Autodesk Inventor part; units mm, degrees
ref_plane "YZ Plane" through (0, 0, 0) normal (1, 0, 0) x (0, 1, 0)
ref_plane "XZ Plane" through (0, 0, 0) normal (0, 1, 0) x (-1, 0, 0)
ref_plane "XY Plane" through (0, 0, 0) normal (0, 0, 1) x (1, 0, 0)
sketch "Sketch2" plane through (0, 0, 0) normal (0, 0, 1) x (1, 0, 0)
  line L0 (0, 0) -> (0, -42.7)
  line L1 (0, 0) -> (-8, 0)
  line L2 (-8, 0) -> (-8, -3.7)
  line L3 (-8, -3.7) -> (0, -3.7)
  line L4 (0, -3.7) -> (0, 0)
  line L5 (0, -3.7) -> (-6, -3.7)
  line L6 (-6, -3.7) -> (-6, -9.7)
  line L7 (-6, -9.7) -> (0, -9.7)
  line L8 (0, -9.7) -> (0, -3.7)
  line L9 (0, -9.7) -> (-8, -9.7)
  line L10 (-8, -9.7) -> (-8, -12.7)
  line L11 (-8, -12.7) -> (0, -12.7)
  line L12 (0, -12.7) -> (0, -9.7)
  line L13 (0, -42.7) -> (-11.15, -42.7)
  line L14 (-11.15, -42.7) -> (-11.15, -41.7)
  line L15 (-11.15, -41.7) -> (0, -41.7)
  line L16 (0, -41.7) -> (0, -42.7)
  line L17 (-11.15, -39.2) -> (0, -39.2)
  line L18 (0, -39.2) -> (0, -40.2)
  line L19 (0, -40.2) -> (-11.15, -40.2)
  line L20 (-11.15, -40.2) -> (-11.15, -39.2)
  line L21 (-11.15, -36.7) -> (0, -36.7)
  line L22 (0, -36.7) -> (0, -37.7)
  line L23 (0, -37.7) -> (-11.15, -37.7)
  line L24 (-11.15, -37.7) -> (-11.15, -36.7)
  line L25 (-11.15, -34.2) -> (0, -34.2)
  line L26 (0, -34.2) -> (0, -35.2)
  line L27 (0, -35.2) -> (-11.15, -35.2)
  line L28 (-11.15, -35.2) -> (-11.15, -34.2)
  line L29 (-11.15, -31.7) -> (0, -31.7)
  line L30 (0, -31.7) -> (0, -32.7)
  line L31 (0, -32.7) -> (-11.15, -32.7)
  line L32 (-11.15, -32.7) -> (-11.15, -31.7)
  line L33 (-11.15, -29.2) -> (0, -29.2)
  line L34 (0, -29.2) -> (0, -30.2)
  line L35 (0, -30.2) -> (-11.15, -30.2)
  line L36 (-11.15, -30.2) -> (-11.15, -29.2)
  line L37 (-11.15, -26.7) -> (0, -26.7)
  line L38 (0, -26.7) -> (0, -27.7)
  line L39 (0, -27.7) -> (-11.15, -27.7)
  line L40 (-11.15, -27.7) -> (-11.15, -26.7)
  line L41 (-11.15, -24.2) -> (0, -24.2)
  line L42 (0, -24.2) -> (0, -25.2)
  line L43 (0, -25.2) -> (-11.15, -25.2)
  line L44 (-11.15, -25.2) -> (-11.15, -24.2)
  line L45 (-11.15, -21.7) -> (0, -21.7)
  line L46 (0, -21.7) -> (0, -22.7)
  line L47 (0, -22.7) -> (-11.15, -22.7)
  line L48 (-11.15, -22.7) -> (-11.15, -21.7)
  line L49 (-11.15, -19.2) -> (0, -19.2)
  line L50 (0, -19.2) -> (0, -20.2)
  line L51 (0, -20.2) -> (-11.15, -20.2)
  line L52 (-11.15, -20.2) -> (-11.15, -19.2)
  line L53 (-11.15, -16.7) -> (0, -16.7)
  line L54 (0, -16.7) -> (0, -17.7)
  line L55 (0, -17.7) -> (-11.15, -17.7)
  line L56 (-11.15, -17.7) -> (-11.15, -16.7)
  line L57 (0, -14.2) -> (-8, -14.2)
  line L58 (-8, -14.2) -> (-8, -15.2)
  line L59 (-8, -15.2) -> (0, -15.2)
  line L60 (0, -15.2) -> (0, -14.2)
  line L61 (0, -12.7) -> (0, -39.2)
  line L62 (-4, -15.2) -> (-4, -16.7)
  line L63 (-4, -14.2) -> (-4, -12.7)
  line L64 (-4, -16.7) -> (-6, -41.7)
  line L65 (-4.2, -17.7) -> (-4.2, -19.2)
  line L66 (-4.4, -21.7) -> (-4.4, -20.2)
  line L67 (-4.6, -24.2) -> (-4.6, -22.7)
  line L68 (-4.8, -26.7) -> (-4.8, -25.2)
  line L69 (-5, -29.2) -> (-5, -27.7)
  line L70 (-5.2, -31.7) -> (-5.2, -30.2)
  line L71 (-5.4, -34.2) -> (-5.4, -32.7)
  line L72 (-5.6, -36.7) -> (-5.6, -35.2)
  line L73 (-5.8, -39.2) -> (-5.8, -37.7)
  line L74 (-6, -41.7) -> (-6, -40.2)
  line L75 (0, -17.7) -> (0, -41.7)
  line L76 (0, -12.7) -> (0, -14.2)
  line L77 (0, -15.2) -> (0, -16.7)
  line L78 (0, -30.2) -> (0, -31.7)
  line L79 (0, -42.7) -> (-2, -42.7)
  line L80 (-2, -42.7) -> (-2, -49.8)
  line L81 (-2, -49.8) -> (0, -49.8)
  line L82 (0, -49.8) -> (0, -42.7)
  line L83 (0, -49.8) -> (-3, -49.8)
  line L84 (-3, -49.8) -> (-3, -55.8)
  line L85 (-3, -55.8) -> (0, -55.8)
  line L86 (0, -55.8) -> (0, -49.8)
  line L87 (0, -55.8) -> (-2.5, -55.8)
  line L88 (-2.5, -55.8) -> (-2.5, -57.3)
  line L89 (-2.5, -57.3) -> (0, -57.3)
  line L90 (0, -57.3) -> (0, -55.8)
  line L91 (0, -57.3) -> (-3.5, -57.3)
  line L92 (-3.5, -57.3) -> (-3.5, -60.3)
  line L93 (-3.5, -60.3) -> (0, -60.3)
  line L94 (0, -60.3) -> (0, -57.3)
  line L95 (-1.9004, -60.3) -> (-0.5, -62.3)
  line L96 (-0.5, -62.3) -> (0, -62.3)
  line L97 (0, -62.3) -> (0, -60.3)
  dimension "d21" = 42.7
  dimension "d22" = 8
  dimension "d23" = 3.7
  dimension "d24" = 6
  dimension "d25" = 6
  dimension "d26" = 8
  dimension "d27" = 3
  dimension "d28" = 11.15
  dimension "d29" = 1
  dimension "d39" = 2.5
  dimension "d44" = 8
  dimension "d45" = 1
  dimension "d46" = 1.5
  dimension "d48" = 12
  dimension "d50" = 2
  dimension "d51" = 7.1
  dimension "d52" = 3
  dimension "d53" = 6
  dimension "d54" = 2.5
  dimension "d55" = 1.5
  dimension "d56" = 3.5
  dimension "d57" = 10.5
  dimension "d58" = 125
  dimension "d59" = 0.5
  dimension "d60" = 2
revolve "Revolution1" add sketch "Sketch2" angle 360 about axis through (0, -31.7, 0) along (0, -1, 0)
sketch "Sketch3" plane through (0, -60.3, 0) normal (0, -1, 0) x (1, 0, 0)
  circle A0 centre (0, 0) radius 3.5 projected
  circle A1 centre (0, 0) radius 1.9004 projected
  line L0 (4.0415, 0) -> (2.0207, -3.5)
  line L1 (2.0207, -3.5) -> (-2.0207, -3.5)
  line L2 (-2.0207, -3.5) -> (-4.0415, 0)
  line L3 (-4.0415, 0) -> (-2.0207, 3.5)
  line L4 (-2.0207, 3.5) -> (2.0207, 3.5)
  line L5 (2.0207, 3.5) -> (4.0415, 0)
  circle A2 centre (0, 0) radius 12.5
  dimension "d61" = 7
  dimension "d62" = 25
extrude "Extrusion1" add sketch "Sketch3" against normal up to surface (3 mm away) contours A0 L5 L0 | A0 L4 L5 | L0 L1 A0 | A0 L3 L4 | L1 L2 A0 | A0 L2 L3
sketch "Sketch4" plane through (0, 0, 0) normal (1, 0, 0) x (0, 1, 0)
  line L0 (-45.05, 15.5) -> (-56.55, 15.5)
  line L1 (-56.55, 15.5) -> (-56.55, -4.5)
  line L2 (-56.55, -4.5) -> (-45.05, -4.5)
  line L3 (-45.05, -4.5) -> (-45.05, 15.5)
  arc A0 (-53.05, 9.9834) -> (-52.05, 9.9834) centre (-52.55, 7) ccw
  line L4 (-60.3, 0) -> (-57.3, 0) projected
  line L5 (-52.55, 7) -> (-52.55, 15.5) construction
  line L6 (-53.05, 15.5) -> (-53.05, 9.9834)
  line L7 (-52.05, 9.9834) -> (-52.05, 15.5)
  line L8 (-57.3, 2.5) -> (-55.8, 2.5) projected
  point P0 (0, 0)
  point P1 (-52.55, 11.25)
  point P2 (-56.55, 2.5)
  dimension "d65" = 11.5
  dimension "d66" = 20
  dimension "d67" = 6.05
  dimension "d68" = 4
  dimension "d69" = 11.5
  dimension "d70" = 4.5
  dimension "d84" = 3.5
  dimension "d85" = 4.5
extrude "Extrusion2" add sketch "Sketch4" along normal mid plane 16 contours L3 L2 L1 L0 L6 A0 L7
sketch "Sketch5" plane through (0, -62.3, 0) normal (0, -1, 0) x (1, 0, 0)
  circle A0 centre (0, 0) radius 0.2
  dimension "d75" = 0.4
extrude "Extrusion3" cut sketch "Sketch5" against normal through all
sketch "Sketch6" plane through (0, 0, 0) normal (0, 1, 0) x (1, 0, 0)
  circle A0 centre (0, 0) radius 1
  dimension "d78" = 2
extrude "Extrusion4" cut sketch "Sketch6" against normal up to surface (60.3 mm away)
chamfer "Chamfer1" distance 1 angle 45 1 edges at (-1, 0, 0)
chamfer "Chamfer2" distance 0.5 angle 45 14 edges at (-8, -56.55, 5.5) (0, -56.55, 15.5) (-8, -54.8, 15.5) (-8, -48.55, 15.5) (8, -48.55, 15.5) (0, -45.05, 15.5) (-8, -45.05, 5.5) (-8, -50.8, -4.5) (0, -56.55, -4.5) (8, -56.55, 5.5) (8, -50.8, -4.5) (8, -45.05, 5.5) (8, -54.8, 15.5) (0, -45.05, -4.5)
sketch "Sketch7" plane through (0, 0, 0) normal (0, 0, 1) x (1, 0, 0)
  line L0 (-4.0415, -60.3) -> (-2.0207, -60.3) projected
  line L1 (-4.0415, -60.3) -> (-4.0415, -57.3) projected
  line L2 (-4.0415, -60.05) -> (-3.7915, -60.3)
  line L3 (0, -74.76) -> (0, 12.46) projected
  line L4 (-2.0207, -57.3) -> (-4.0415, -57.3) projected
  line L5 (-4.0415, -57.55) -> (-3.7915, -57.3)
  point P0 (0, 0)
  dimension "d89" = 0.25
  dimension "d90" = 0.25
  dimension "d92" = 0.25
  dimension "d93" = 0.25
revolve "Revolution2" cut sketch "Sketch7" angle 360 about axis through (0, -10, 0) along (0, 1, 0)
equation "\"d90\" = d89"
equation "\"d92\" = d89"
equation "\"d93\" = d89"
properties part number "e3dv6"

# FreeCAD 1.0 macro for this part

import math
import FreeCAD as App
import Part
import Sketcher
from FreeCAD import Vector
Q = App.Units.Quantity


def edges_at(feature, points):
    """Names of the edges that pass closest to the given points."""
    edges = feature.Shape.Edges
    near = lambda p: min(range(len(edges)), key=lambda i: edges[i].distToShape(Part.Vertex(*p))[0])
    return sorted({f"Edge{near(p) + 1}" for p in points})


def add_polygon(sketch, points):
    """Adds a closed chain of lines whose ends are joined by coincident constraints."""
    first, n = sketch.GeometryCount, len(points)
    for a, b in zip(points, points[1:] + points[:1]):
        sketch.addGeometry(Part.LineSegment(App.Vector(*a, 0), App.Vector(*b, 0)), False)
    for i in range(n):
        sketch.addConstraint(Sketcher.Constraint("Coincident", first + i, 2, first + (i + 1) % n, 1))

doc = App.newDocument("Part")
params = doc.addObject("Spreadsheet::Sheet", "Params")
for row, (alias, value) in enumerate([
    ("sketch1_width", "8 mm"),
    ("sketch1_width2", "2 mm"),
    ("sketch1_width3", "1 mm"),
    ("sketch1_height", "6 mm"),
    ("sketch1_height2", "3 mm"),
    ("revolution_angle", "360 deg"),
    ("sketch2_radius", "3.5 mm"),
    ("pad1_length", "3 mm"),
    ("sketch3_height", "20 mm"),
    ("sketch3_width", "3.5 mm"),
    ("sketch3_width2", "11.5 mm"),
    ("pad2_length", "16 mm"),
    ("sketch4_diameter", "0.4 mm"),
    ("sketch5_diameter", "2 mm"),
    ("pocket2_length", "60.3 mm"),
    ("chamfer_size", "1 mm"),
    ("chamfer2_size", "0.5 mm"),
    ("sketch6_width", "0.25 mm"),
    ("groove_angle", "360 deg"),
], start=1):
    params.set(f"A{row}", alias)
    params.set(f"B{row}", "=" + value)
    params.setAlias(f"B{row}", alias)

body = doc.addObject("PartDesign::Body", "Body")

# Sketch on XY plane
sketch1 = body.newObject("Sketcher::SketchObject", "Sketch")
sketch1.AttachmentSupport = (doc.getObject("XY_Plane"), [""])
sketch1.MapMode = "FlatFace"
add_polygon(sketch1, [(0, 0), (-8, 0), (-8, -3.7), (-6, -3.7), (-6, -9.7), (-8, -9.7), (-8, -12.7), (-4, -12.7), (-4, -14.2), (-8, -14.2), (-8, -15.2), (-4, -15.2), (-4, -16.7), (-11.15, -16.7), (-11.15, -17.7), (-4.2, -17.7), (-4.2, -19.2), (-11.15, -19.2), (-11.15, -20.2), (-4.4, -20.2), (-4.4, -21.7), (-11.15, -21.7), (-11.15, -22.7), (-4.6, -22.7), (-4.6, -24.2), (-11.15, -24.2), (-11.15, -25.2), (-4.8, -25.2), (-4.8, -26.7), (-11.15, -26.7), (-11.15, -27.7), (-5, -27.7), (-5, -29.2), (-11.15, -29.2), (-11.15, -30.2), (-5.2, -30.2), (-5.2, -31.7), (-11.15, -31.7), (-11.15, -32.7), (-5.4, -32.7), (-5.4, -34.2), (-11.15, -34.2), (-11.15, -35.2), (-5.6, -35.2), (-5.6, -36.7), (-11.15, -36.7), (-11.15, -37.7), (-5.8, -37.7), (-5.8, -39.2), (-11.15, -39.2), (-11.15, -40.2), (-6, -40.2), (-6, -41.7), (-11.15, -41.7), (-11.15, -42.7), (-2, -42.7), (-2, -49.8), (-3, -49.8), (-3, -55.8), (-2.5, -55.8), (-2.5, -57.3), (-3.5, -57.3), (-3.5, -60.3), (-1.9004, -60.3), (-0.5, -62.3), (0, -62.3)])  # lines 0-65
sketch1.addConstraint([
    Sketcher.Constraint("Horizontal", 0),
    Sketcher.Constraint("Vertical", 1),
    Sketcher.Constraint("Horizontal", 2),
    Sketcher.Constraint("Vertical", 3),
    Sketcher.Constraint("Horizontal", 4),
    Sketcher.Constraint("Vertical", 5),
    Sketcher.Constraint("Horizontal", 6),
    Sketcher.Constraint("Vertical", 7),
    Sketcher.Constraint("Horizontal", 8),
    Sketcher.Constraint("Vertical", 9),
    Sketcher.Constraint("Horizontal", 10),
    Sketcher.Constraint("Vertical", 11),
    Sketcher.Constraint("Horizontal", 12),
    Sketcher.Constraint("Vertical", 13),
    Sketcher.Constraint("Horizontal", 14),
    Sketcher.Constraint("Vertical", 15),
    Sketcher.Constraint("Horizontal", 16),
    Sketcher.Constraint("Vertical", 17),
    Sketcher.Constraint("Horizontal", 18),
    Sketcher.Constraint("Vertical", 19),
    Sketcher.Constraint("Horizontal", 20),
    Sketcher.Constraint("Vertical", 21),
    Sketcher.Constraint("Horizontal", 22),
    Sketcher.Constraint("Vertical", 23),
    Sketcher.Constraint("Horizontal", 24),
    Sketcher.Constraint("Vertical", 25),
    Sketcher.Constraint("Horizontal", 26),
    Sketcher.Constraint("Vertical", 27),
    Sketcher.Constraint("Horizontal", 28),
    Sketcher.Constraint("Vertical", 29),
    Sketcher.Constraint("Horizontal", 30),
    Sketcher.Constraint("Vertical", 31),
    Sketcher.Constraint("Horizontal", 32),
    Sketcher.Constraint("Vertical", 33),
    Sketcher.Constraint("Horizontal", 34),
    Sketcher.Constraint("Vertical", 35),
    Sketcher.Constraint("Horizontal", 36),
    Sketcher.Constraint("Vertical", 37),
    Sketcher.Constraint("Horizontal", 38),
    Sketcher.Constraint("Vertical", 39),
    Sketcher.Constraint("Horizontal", 40),
    Sketcher.Constraint("Vertical", 41),
    Sketcher.Constraint("Horizontal", 42),
    Sketcher.Constraint("Vertical", 43),
    Sketcher.Constraint("Horizontal", 44),
    Sketcher.Constraint("Vertical", 45),
    Sketcher.Constraint("Horizontal", 46),
    Sketcher.Constraint("Vertical", 47),
    Sketcher.Constraint("Horizontal", 48),
    Sketcher.Constraint("Vertical", 49),
    Sketcher.Constraint("Horizontal", 50),
    Sketcher.Constraint("Vertical", 51),
    Sketcher.Constraint("Horizontal", 52),
    Sketcher.Constraint("Vertical", 53),
    Sketcher.Constraint("Horizontal", 54),
    Sketcher.Constraint("Vertical", 55),
    Sketcher.Constraint("Horizontal", 56),
    Sketcher.Constraint("Vertical", 57),
    Sketcher.Constraint("Horizontal", 58),
    Sketcher.Constraint("Vertical", 59),
    Sketcher.Constraint("Horizontal", 60),
    Sketcher.Constraint("Vertical", 61),
    Sketcher.Constraint("Horizontal", 62),
    Sketcher.Constraint("Horizontal", 64),
    Sketcher.Constraint("Vertical", 65),
    Sketcher.Constraint("Coincident", 65, 2, -1, 1),
    Sketcher.Constraint("Vertical", 1, 2, 4, 2),
    Sketcher.Constraint("Vertical", 5, 2, 8, 2),
    Sketcher.Constraint("Vertical", 7, 2, 10, 2),
    Sketcher.Constraint("Vertical", 13, 2, 16, 2),
    Sketcher.Constraint("Vertical", 17, 2, 20, 2),
    Sketcher.Constraint("Vertical", 21, 2, 24, 2),
    Sketcher.Constraint("Vertical", 25, 2, 28, 2),
    Sketcher.Constraint("Vertical", 29, 2, 32, 2),
    Sketcher.Constraint("Vertical", 33, 2, 36, 2),
    Sketcher.Constraint("Vertical", 37, 2, 40, 2),
    Sketcher.Constraint("Vertical", 41, 2, 44, 2),
    Sketcher.Constraint("Vertical", 45, 2, 48, 2),
    Sketcher.Constraint("Vertical", 3, 2, 50, 2),
    Sketcher.Constraint("Vertical", 49, 2, 52, 2),
    Sketcher.Constraint("Equal", 56, 60),
    Sketcher.Constraint("Equal", 58, 64),
    Sketcher.Constraint("Equal", 60, 9),
    Sketcher.Constraint("Equal", 7, 11),
    Sketcher.Constraint("Equal", 9, 13),
    Sketcher.Constraint("Equal", 11, 15),
    Sketcher.Constraint("Equal", 13, 17),
    Sketcher.Constraint("Equal", 15, 19),
    Sketcher.Constraint("Equal", 17, 21),
    Sketcher.Constraint("Equal", 19, 23),
    Sketcher.Constraint("Equal", 21, 25),
    Sketcher.Constraint("Equal", 23, 27),
    Sketcher.Constraint("Equal", 25, 29),
    Sketcher.Constraint("Equal", 27, 31),
    Sketcher.Constraint("Equal", 29, 33),
    Sketcher.Constraint("Equal", 31, 35),
    Sketcher.Constraint("Equal", 33, 37),
    Sketcher.Constraint("Equal", 35, 39),
    Sketcher.Constraint("Equal", 37, 41),
    Sketcher.Constraint("Equal", 39, 43),
    Sketcher.Constraint("Equal", 41, 45),
    Sketcher.Constraint("Equal", 43, 47),
    Sketcher.Constraint("Equal", 45, 49),
    Sketcher.Constraint("Equal", 47, 51),
    Sketcher.Constraint("Equal", 49, 53),
    Sketcher.Constraint("Equal", 3, 57),
    Sketcher.Constraint("Equal", 51, 59),
    Sketcher.Constraint("Equal", 5, 61),
    Sketcher.Constraint("DistanceX", 0, 2, 0, 1, 8.0),
    Sketcher.Constraint("DistanceX", 2, 1, 2, 2, 2.0),
    Sketcher.Constraint("DistanceX", 56, 2, 56, 1, 1.0),
    Sketcher.Constraint("DistanceY", 3, 2, 3, 1, 6.0),
    Sketcher.Constraint("DistanceY", 5, 2, 5, 1, 3.0),
    Sketcher.Constraint("DistanceX", 58, 1, 58, 2, 0.5),
    Sketcher.Constraint("DistanceY", 1, 2, 1, 1, 3.7),
    Sketcher.Constraint("DistanceY", 7, 2, 7, 1, 1.5),
    Sketcher.Constraint("DistanceY", 55, 2, 55, 1, 7.1),
    Sketcher.Constraint("DistanceX", 54, 2, -1, 1, 2.0),
    Sketcher.Constraint("DistanceX", 6, 1, 6, 2, 4.0),
    Sketcher.Constraint("DistanceX", 12, 2, -1, 1, 11.15),
    Sketcher.Constraint("Angle", 63, Q("-55.0003 deg")),
    Sketcher.Constraint("DistanceY", 65, 1, 65, 2, 62.3),
    Sketcher.Constraint("DistanceX", 30, 2, -1, 1, 5.0),
    Sketcher.Constraint("DistanceX", 14, 1, 14, 2, 6.95),
    Sketcher.Constraint("DistanceX", 18, 1, 18, 2, 6.75),
    Sketcher.Constraint("DistanceX", 22, 1, 22, 2, 6.55),
    Sketcher.Constraint("DistanceX", 26, 1, 26, 2, 6.35),
    Sketcher.Constraint("DistanceX", 34, 1, 34, 2, 5.95),
    Sketcher.Constraint("DistanceX", 38, 1, 38, 2, 5.75),
    Sketcher.Constraint("DistanceX", 42, 1, 42, 2, 5.55),
    Sketcher.Constraint("DistanceX", 46, 1, 46, 2, 5.35),
])
sketch1.setExpression("Constraints[174]", "Params.sketch1_width")
sketch1.setExpression("Constraints[175]", "Params.sketch1_width2")
sketch1.setExpression("Constraints[176]", "Params.sketch1_width3")
sketch1.setExpression("Constraints[177]", "Params.sketch1_height")
sketch1.setExpression("Constraints[178]", "Params.sketch1_height2")
revolution = body.newObject("PartDesign::Revolution", "Revolution")
revolution.Profile = sketch1
revolution.ReferenceAxis = (sketch1, ["V_Axis"])
revolution.setExpression("Angle", "Params.revolution_angle")

# Sketch on XZ plane
sketch2 = body.newObject("Sketcher::SketchObject", "Sketch001")
sketch2.AttachmentSupport = (doc.getObject("XZ_Plane"), [""])
sketch2.MapMode = "FlatFace"
sketch2.AttachmentOffset = App.Placement(Vector(0, 0, 60.3), App.Rotation())
sketch2.addGeometry([
    Part.ArcOfCircle(Part.Circle(Vector(0, 0, 0), Vector(0, 0, 1), 3.5), math.radians(-30.000909), math.radians(30.000909)),  # 0
    Part.LineSegment(Vector(3.031069, -1.750053, 0), Vector(4.0415, 0, 0)),  # 1
    Part.LineSegment(Vector(4.0415, 0, 0), Vector(3.031069, 1.750053, 0)),  # 2
    Part.ArcOfCircle(Part.Circle(Vector(0, 0, 0), Vector(0, 0, 1), 3.5), math.radians(30.000909), math.radians(90)),  # 3
    Part.LineSegment(Vector(3.031069, 1.750053, 0), Vector(2.0207, 3.5, 0)),  # 4
    Part.LineSegment(Vector(2.0207, 3.5, 0), Vector(0, 3.5, 0)),  # 5
    Part.LineSegment(Vector(2.0207, -3.5, 0), Vector(3.031069, -1.750053, 0)),  # 6
    Part.ArcOfCircle(Part.Circle(Vector(0, 0, 0), Vector(0, 0, 1), 3.5), math.radians(-90), math.radians(-30.000909)),  # 7
    Part.LineSegment(Vector(0, -3.5, 0), Vector(2.0207, -3.5, 0)),  # 8
    Part.ArcOfCircle(Part.Circle(Vector(0, 0, 0), Vector(0, 0, 1), 3.5), math.radians(90), math.radians(149.99909)),  # 9
    Part.LineSegment(Vector(0, 3.5, 0), Vector(-2.0207, 3.5, 0)),  # 10
    Part.LineSegment(Vector(-2.0207, 3.5, 0), Vector(-3.031069, 1.750053, 0)),  # 11
    Part.LineSegment(Vector(-2.0207, -3.5, 0), Vector(0, -3.5, 0)),  # 12
    Part.ArcOfCircle(Part.Circle(Vector(0, 0, 0), Vector(0, 0, 1), 3.5), math.radians(-149.999091), math.radians(-90)),  # 13
    Part.LineSegment(Vector(-3.031069, -1.750053, 0), Vector(-2.0207, -3.5, 0)),  # 14
    Part.ArcOfCircle(Part.Circle(Vector(0, 0, 0), Vector(0, 0, 1), 3.5), math.radians(149.99909), math.radians(210.000909)),  # 15
    Part.LineSegment(Vector(-3.031069, 1.750053, 0), Vector(-4.0415, 0, 0)),  # 16
    Part.LineSegment(Vector(-4.0415, 0, 0), Vector(-3.031069, -1.750053, 0)),  # 17
], False)
sketch2.addConstraint([
    Sketcher.Constraint("Tangent", 0, 1, 1, 1),
    Sketcher.Constraint("Coincident", 1, 2, 2, 1),
    Sketcher.Constraint("Tangent", 2, 2, 0, 2),
    Sketcher.Constraint("Tangent", 3, 1, 4, 1),
    Sketcher.Constraint("Coincident", 4, 2, 5, 1),
    Sketcher.Constraint("Tangent", 5, 2, 3, 2),
    Sketcher.Constraint("Tangent", 6, 2, 7, 2),
    Sketcher.Constraint("Tangent", 7, 1, 8, 1),
    Sketcher.Constraint("Coincident", 8, 2, 6, 1),
    Sketcher.Constraint("Tangent", 9, 1, 10, 1),
    Sketcher.Constraint("Coincident", 10, 2, 11, 1),
    Sketcher.Constraint("Tangent", 11, 2, 9, 2),
    Sketcher.Constraint("Tangent", 12, 2, 13, 2),
    Sketcher.Constraint("Tangent", 13, 1, 14, 1),
    Sketcher.Constraint("Coincident", 14, 2, 12, 1),
    Sketcher.Constraint("Tangent", 15, 1, 16, 1),
    Sketcher.Constraint("Coincident", 16, 2, 17, 1),
    Sketcher.Constraint("Tangent", 17, 2, 15, 2),
    Sketcher.Constraint("Horizontal", 5),
    Sketcher.Constraint("Horizontal", 8),
    Sketcher.Constraint("Horizontal", 10),
    Sketcher.Constraint("Horizontal", 12),
    Sketcher.Constraint("Coincident", 0, 3, -1, 1),
    Sketcher.Constraint("Coincident", 3, 3, -1, 1),
    Sketcher.Constraint("Coincident", 7, 3, -1, 1),
    Sketcher.Constraint("Coincident", 9, 3, -1, 1),
    Sketcher.Constraint("Coincident", 13, 3, -1, 1),
    Sketcher.Constraint("Coincident", 15, 3, -1, 1),
    Sketcher.Constraint("Coincident", 3, 1, 2, 2),
    Sketcher.Constraint("Coincident", 6, 2, 0, 1),
    Sketcher.Constraint("Coincident", 15, 1, 11, 2),
    Sketcher.Constraint("Coincident", 17, 2, 13, 1),
    Sketcher.Constraint("Equal", 7, 9),
    Sketcher.Constraint("Symmetric", 1, 2, 16, 2, -1, 1),
    Sketcher.Constraint("PointOnObject", 1, 2, -1),
    Sketcher.Constraint("Equal", 2, 4),
    Sketcher.Constraint("Radius", 0, 3.5),
])
sketch2.setExpression("Constraints[36]", "Params.sketch2_radius")
pad1 = body.newObject("PartDesign::Pad", "Pad")
pad1.Profile = sketch2
pad1.setExpression("Length", "Params.pad1_length")
pad1.Reversed = True

# Sketch on YZ plane
sketch3 = body.newObject("Sketcher::SketchObject", "Sketch002")
sketch3.AttachmentSupport = (doc.getObject("YZ_Plane"), [""])
sketch3.MapMode = "FlatFace"
sketch3.addGeometry([
    Part.LineSegment(Vector(-45.05, -4.5, 0), Vector(-45.05, 15.5, 0)),  # 0
    Part.LineSegment(Vector(-45.05, 15.5, 0), Vector(-52.05, 15.5, 0)),  # 1
    Part.LineSegment(Vector(-52.05, 15.5, 0), Vector(-52.05, 9.9834, 0)),  # 2
    Part.ArcOfCircle(Part.Circle(Vector(-52.55, 7, 0), Vector(0, 0, 1), 3.025008), math.radians(99.514012), math.radians(440.485988)),  # 3
    Part.LineSegment(Vector(-53.05, 9.9834, 0), Vector(-53.05, 15.5, 0)),  # 4
    Part.LineSegment(Vector(-53.05, 15.5, 0), Vector(-56.55, 15.5, 0)),  # 5
    Part.LineSegment(Vector(-56.55, 15.5, 0), Vector(-56.55, -4.5, 0)),  # 6
    Part.LineSegment(Vector(-56.55, -4.5, 0), Vector(-45.05, -4.5, 0)),  # 7
], False)
sketch3.addConstraint([
    Sketcher.Constraint("Coincident", 0, 2, 1, 1),
    Sketcher.Constraint("Coincident", 1, 2, 2, 1),
    Sketcher.Constraint("Coincident", 2, 2, 3, 2),
    Sketcher.Constraint("Coincident", 3, 1, 4, 1),
    Sketcher.Constraint("Coincident", 4, 2, 5, 1),
    Sketcher.Constraint("Coincident", 5, 2, 6, 1),
    Sketcher.Constraint("Coincident", 6, 2, 7, 1),
    Sketcher.Constraint("Coincident", 7, 2, 0, 1),
    Sketcher.Constraint("Vertical", 0),
    Sketcher.Constraint("Horizontal", 1),
    Sketcher.Constraint("Vertical", 2),
    Sketcher.Constraint("Vertical", 4),
    Sketcher.Constraint("Horizontal", 5),
    Sketcher.Constraint("Vertical", 6),
    Sketcher.Constraint("Horizontal", 7),
    Sketcher.Constraint("Horizontal", 2, 2, 3, 1),
    Sketcher.Constraint("Horizontal", 1, 2, 4, 2),
    Sketcher.Constraint("DistanceY", 0, 1, 0, 2, 20.0),
    Sketcher.Constraint("DistanceX", 5, 2, 5, 1, 3.5),
    Sketcher.Constraint("DistanceX", 7, 1, 7, 2, 11.5),
    Sketcher.Constraint("Radius", 3, 3.025),
    Sketcher.Constraint("DistanceX", 5, 2, 3, 3, 4.0),
    Sketcher.Constraint("DistanceY", 6, 2, -1, 1, 4.5),
    Sketcher.Constraint("DistanceY", 6, 2, 3, 3, 11.5),
    Sketcher.Constraint("DistanceX", 3, 3, -1, 1, 52.55),
])
sketch3.setExpression("Constraints[17]", "Params.sketch3_height")
sketch3.setExpression("Constraints[18]", "Params.sketch3_width")
sketch3.setExpression("Constraints[19]", "Params.sketch3_width2")
pad2 = body.newObject("PartDesign::Pad", "Pad001")
pad2.Profile = sketch3
pad2.setExpression("Length", "Params.pad2_length")
pad2.Midplane = True

# Sketch on XZ plane
sketch4 = body.newObject("Sketcher::SketchObject", "Sketch003")
sketch4.AttachmentSupport = (doc.getObject("XZ_Plane"), [""])
sketch4.MapMode = "FlatFace"
sketch4.AttachmentOffset = App.Placement(Vector(0, 0, 62.3), App.Rotation())
sketch4.addGeometry(Part.Circle(Vector(0, 0, 0), Vector(0, 0, 1), 0.2), False)
sketch4.addConstraint([
    Sketcher.Constraint("Coincident", 0, 3, -1, 1),
    Sketcher.Constraint("Diameter", 0, 0.4),
])
sketch4.setExpression("Constraints[1]", "Params.sketch4_diameter")
pocket1 = body.newObject("PartDesign::Pocket", "Pocket")
pocket1.Profile = sketch4
pocket1.Type = "ThroughAll"

# Sketch on XZ plane
sketch5 = body.newObject("Sketcher::SketchObject", "Sketch004")
sketch5.AttachmentSupport = (doc.getObject("XZ_Plane"), [""])
sketch5.MapMode = "FlatFace"
sketch5.addGeometry(Part.Circle(Vector(0, 0, 0), Vector(0, 0, 1), 1), False)
sketch5.addConstraint([
    Sketcher.Constraint("Coincident", 0, 3, -1, 1),
    Sketcher.Constraint("Diameter", 0, 2.0),
])
sketch5.setExpression("Constraints[1]", "Params.sketch5_diameter")
pocket2 = body.newObject("PartDesign::Pocket", "Pocket001")
pocket2.Profile = sketch5
pocket2.setExpression("Length", "Params.pocket2_length")
pocket2.Reversed = True
doc.recompute()

chamfer = body.newObject("PartDesign::Chamfer", "Chamfer")
chamfer.Base = (pocket2, edges_at(pocket2, [(-1, 0, 0)]))
chamfer.setExpression("Size", "Params.chamfer_size")
doc.recompute()

chamfer2 = body.newObject("PartDesign::Chamfer", "Chamfer001")
chamfer2.Base = (chamfer, edges_at(chamfer, [
    (-8, -56.55, 5.5),
    (0, -56.55, 15.5),
    (-8, -54.8, 15.5),
    (-8, -48.55, 15.5),
    (8, -48.55, 15.5),
    (0, -45.05, 15.5),
    (-8, -45.05, 5.5),
    (-8, -50.8, -4.5),
    (0, -56.55, -4.5),
    (8, -56.55, 5.5),
    (8, -50.8, -4.5),
    (8, -45.05, 5.5),
    (8, -54.8, 15.5),
    (0, -45.05, -4.5),
]))
chamfer2.setExpression("Size", "Params.chamfer2_size")

# Sketch on XY plane
sketch6 = body.newObject("Sketcher::SketchObject", "Sketch005")
sketch6.AttachmentSupport = (doc.getObject("XY_Plane"), [""])
sketch6.MapMode = "FlatFace"
add_polygon(sketch6, [(-4.0415, -60.05), (-4.0415, -60.3), (-3.7915, -60.3)])  # lines 0-2
add_polygon(sketch6, [(-4.0415, -57.3), (-4.0415, -57.55), (-3.7915, -57.3)])  # lines 3-5
sketch6.addConstraint([
    Sketcher.Constraint("Vertical", 0),
    Sketcher.Constraint("Horizontal", 1),
    Sketcher.Constraint("Vertical", 3),
    Sketcher.Constraint("Horizontal", 5),
    Sketcher.Constraint("Perpendicular", 2, 4),
    Sketcher.Constraint("Vertical", 2, 2, 3, 2),
    Sketcher.Constraint("Vertical", 1, 2, 4, 2),
    Sketcher.Constraint("Equal", 5, 0),
    Sketcher.Constraint("DistanceX", 1, 1, 1, 2, 0.25),
    Sketcher.Constraint("DistanceY", 1, 2, 4, 2, 3.0),
    Sketcher.Constraint("DistanceY", 0, 2, -1, 1, 60.3),
    Sketcher.Constraint("DistanceX", 0, 2, -1, 1, 4.0415),
])
sketch6.setExpression("Constraints[14]", "Params.sketch6_width")
groove = body.newObject("PartDesign::Groove", "Groove")
groove.Profile = sketch6
groove.ReferenceAxis = (sketch6, ["V_Axis"])
groove.setExpression("Angle", "Params.groove_angle")

doc.recompute()
